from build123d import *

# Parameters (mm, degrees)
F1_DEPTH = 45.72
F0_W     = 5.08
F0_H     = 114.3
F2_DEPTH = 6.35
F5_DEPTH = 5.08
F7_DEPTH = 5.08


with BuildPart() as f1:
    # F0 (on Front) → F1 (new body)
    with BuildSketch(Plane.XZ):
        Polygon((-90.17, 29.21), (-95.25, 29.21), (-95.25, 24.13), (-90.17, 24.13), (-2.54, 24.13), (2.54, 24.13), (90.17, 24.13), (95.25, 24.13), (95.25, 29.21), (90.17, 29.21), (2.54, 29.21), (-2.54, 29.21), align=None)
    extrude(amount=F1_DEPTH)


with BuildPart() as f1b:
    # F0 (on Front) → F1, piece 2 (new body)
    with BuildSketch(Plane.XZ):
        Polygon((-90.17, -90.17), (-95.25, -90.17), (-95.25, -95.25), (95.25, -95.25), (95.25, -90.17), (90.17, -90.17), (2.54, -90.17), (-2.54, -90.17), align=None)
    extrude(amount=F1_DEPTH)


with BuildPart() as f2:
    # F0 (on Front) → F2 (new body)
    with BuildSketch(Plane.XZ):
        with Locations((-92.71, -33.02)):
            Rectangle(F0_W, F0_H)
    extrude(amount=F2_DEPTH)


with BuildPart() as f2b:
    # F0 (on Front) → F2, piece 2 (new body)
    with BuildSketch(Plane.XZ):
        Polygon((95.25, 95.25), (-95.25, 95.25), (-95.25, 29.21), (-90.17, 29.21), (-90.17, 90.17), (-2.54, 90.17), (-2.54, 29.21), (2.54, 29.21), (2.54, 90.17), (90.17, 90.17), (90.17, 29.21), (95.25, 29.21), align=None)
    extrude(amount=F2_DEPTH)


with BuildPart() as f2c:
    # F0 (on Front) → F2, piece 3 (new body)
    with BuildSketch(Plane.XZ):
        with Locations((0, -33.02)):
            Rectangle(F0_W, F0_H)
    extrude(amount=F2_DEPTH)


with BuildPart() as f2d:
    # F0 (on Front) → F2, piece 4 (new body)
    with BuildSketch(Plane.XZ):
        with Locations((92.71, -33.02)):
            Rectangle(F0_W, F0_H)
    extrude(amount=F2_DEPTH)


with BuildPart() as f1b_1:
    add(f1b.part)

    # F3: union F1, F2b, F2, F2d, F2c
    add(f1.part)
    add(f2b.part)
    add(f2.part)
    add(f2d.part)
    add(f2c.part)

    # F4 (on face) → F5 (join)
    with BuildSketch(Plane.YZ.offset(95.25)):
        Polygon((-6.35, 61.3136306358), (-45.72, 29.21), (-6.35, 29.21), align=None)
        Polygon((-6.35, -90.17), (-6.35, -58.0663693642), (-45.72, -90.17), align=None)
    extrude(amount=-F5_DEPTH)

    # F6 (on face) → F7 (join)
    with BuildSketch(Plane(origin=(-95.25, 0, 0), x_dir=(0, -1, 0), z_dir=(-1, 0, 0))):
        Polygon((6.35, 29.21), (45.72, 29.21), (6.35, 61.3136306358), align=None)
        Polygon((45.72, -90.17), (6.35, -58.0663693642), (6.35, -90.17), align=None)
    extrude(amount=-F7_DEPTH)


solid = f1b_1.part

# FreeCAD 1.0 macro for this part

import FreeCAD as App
import Part
import Sketcher

V = App.Vector
Q = App.Units.Quantity


def add_polygon(sketch, points):
    """Adds a closed chain of lines whose ends are joined by coincident constraints."""
    first, n = sketch.GeometryCount, len(points)
    for a, b in zip(points, points[1:] + points[:1]):
        sketch.addGeometry(Part.LineSegment(App.Vector(*a, 0), App.Vector(*b, 0)), False)
    for i in range(n):
        sketch.addConstraint(Sketcher.Constraint("Coincident", first + i, 2, first + (i + 1) % n, 1))

doc = App.newDocument("Part")
body = doc.addObject("PartDesign::Body", "Body")

# Sketch on XZ plane
sketch1 = body.newObject("Sketcher::SketchObject", "Sketch")
sketch1.AttachmentSupport = (doc.getObject("XZ_Plane"), [""])
sketch1.MapMode = "FlatFace"
add_polygon(sketch1, [(-95.25, 29.21), (-95.25, 24.13), (95.25, 24.13), (95.25, 29.21)])  # lines 0-3
sketch1.addConstraint(Sketcher.Constraint("Vertical", 0))
sketch1.addConstraint(Sketcher.Constraint("Horizontal", 1))
sketch1.addConstraint(Sketcher.Constraint("Vertical", 2))
sketch1.addConstraint(Sketcher.Constraint("Horizontal", 3))
sketch1.addConstraint(Sketcher.Constraint("DistanceX", 1, 1, 1, 2, Q("7.5 in")))
sketch1.addConstraint(Sketcher.Constraint("DistanceY", 0, 2, 0, 1, Q("0.2 in")))
sketch1.addConstraint(Sketcher.Constraint("DistanceX", 0, 2, -1, 1, Q("3.75 in")))
sketch1.addConstraint(Sketcher.Constraint("DistanceY", -1, 1, 0, 2, Q("0.95 in")))
pad1 = body.newObject("PartDesign::Pad", "Pad")
pad1.Profile = sketch1
pad1.Length = Q("1.8 in")
body2 = doc.addObject("PartDesign::Body", "Body001")

# Sketch on XZ plane
sketch2 = body2.newObject("Sketcher::SketchObject", "Sketch001")
sketch2.AttachmentSupport = (doc.getObject("XZ_Plane001"), [""])
sketch2.MapMode = "FlatFace"
add_polygon(sketch2, [(-95.25, -90.17), (-95.25, -95.25), (95.25, -95.25), (95.25, -90.17)])  # lines 0-3
sketch2.addConstraint(Sketcher.Constraint("Vertical", 0))
sketch2.addConstraint(Sketcher.Constraint("Horizontal", 1))
sketch2.addConstraint(Sketcher.Constraint("Vertical", 2))
sketch2.addConstraint(Sketcher.Constraint("Horizontal", 3))
sketch2.addConstraint(Sketcher.Constraint("DistanceX", 1, 1, 1, 2, Q("7.5 in")))
sketch2.addConstraint(Sketcher.Constraint("DistanceY", 0, 2, 0, 1, Q("0.2 in")))
sketch2.addConstraint(Sketcher.Constraint("DistanceX", 0, 2, -1, 1, Q("3.75 in")))
sketch2.addConstraint(Sketcher.Constraint("DistanceY", 0, 2, -1, 1, Q("3.75 in")))
pad2 = body2.newObject("PartDesign::Pad", "Pad001")
pad2.Profile = sketch2
pad2.Length = Q("1.8 in")
body3 = doc.addObject("PartDesign::Body", "Body002")

# Sketch on XZ plane
sketch3 = body3.newObject("Sketcher::SketchObject", "Sketch002")
sketch3.AttachmentSupport = (doc.getObject("XZ_Plane002"), [""])
sketch3.MapMode = "FlatFace"
add_polygon(sketch3, [(-95.25, 24.13), (-95.25, -90.17), (-90.17, -90.17), (-90.17, 24.13)])  # lines 0-3
sketch3.addConstraint(Sketcher.Constraint("Vertical", 0))
sketch3.addConstraint(Sketcher.Constraint("Horizontal", 1))
sketch3.addConstraint(Sketcher.Constraint("Vertical", 2))
sketch3.addConstraint(Sketcher.Constraint("Horizontal", 3))
sketch3.addConstraint(Sketcher.Constraint("DistanceX", 1, 1, 1, 2, Q("0.2 in")))
sketch3.addConstraint(Sketcher.Constraint("DistanceY", 0, 2, 0, 1, Q("4.5 in")))
sketch3.addConstraint(Sketcher.Constraint("DistanceX", 0, 2, -1, 1, Q("3.75 in")))
sketch3.addConstraint(Sketcher.Constraint("DistanceY", 0, 2, -1, 1, Q("3.55 in")))
pad3 = body3.newObject("PartDesign::Pad", "Pad002")
pad3.Profile = sketch3
pad3.Length = Q("0.25 in")
body4 = doc.addObject("PartDesign::Body", "Body003")

# Sketch on XZ plane
sketch4 = body4.newObject("Sketcher::SketchObject", "Sketch003")
sketch4.AttachmentSupport = (doc.getObject("XZ_Plane003"), [""])
sketch4.MapMode = "FlatFace"
add_polygon(sketch4, [(95.25, 95.25), (-95.25, 95.25), (-95.25, 29.21), (-90.17, 29.21), (-90.17, 90.17), (-2.54, 90.17), (-2.54, 29.21), (2.54, 29.21), (2.54, 90.17), (90.17, 90.17), (90.17, 29.21), (95.25, 29.21)])  # lines 0-11
sketch4.addConstraint(Sketcher.Constraint("Horizontal", 0))
sketch4.addConstraint(Sketcher.Constraint("Vertical", 1))
sketch4.addConstraint(Sketcher.Constraint("Horizontal", 2))
sketch4.addConstraint(Sketcher.Constraint("Vertical", 3))
sketch4.addConstraint(Sketcher.Constraint("Horizontal", 4))
sketch4.addConstraint(Sketcher.Constraint("Vertical", 5))
sketch4.addConstraint(Sketcher.Constraint("Horizontal", 6))
sketch4.addConstraint(Sketcher.Constraint("Vertical", 7))
sketch4.addConstraint(Sketcher.Constraint("Horizontal", 8))
sketch4.addConstraint(Sketcher.Constraint("Vertical", 9))
sketch4.addConstraint(Sketcher.Constraint("Horizontal", 10))
sketch4.addConstraint(Sketcher.Constraint("Vertical", 11))
sketch4.addConstraint(Sketcher.Constraint("Symmetric", 4, 2, 7, 2, -2))
sketch4.addConstraint(Sketcher.Constraint("Symmetric", 2, 2, 9, 2, -2))
sketch4.addConstraint(Sketcher.Constraint("Horizontal", 2, 2, 5, 2))
sketch4.addConstraint(Sketcher.Constraint("Equal", 2, 6))
sketch4.addConstraint(Sketcher.Constraint("Equal", 6, 10))
sketch4.addConstraint(Sketcher.Constraint("DistanceX", 0, 2, 0, 1, Q("7.5 in")))
sketch4.addConstraint(Sketcher.Constraint("DistanceX", 2, 1, 2, 2, Q("0.2 in")))
sketch4.addConstraint(Sketcher.Constraint("DistanceY", 1, 2, 1, 1, Q("2.6 in")))
sketch4.addConstraint(Sketcher.Constraint("DistanceY", 3, 1, 3, 2, Q("2.4 in")))
sketch4.addConstraint(Sketcher.Constraint("DistanceY", -1, 1, 0, 2, Q("3.75 in")))
pad4 = body4.newObject("PartDesign::Pad", "Pad003")
pad4.Profile = sketch4
pad4.Length = Q("0.25 in")
body5 = doc.addObject("PartDesign::Body", "Body004")

# Sketch on XZ plane
sketch5 = body5.newObject("Sketcher::SketchObject", "Sketch004")
sketch5.AttachmentSupport = (doc.getObject("XZ_Plane004"), [""])
sketch5.MapMode = "FlatFace"
add_polygon(sketch5, [(-2.54, 24.13), (-2.54, -90.17), (2.54, -90.17), (2.54, 24.13)])  # lines 0-3
sketch5.addConstraint(Sketcher.Constraint("Vertical", 0))
sketch5.addConstraint(Sketcher.Constraint("Horizontal", 1))
sketch5.addConstraint(Sketcher.Constraint("Vertical", 2))
sketch5.addConstraint(Sketcher.Constraint("Horizontal", 3))
sketch5.addConstraint(Sketcher.Constraint("DistanceX", 1, 1, 1, 2, Q("0.2 in")))
sketch5.addConstraint(Sketcher.Constraint("DistanceY", 0, 2, 0, 1, Q("4.5 in")))
sketch5.addConstraint(Sketcher.Constraint("DistanceX", 0, 2, -1, 1, Q("0.1 in")))
sketch5.addConstraint(Sketcher.Constraint("DistanceY", 0, 2, -1, 1, Q("3.55 in")))
pad5 = body5.newObject("PartDesign::Pad", "Pad004")
pad5.Profile = sketch5
pad5.Length = Q("0.25 in")
body6 = doc.addObject("PartDesign::Body", "Body005")

# Sketch on XZ plane
sketch6 = body6.newObject("Sketcher::SketchObject", "Sketch005")
sketch6.AttachmentSupport = (doc.getObject("XZ_Plane005"), [""])
sketch6.MapMode = "FlatFace"
add_polygon(sketch6, [(90.17, 24.13), (90.17, -90.17), (95.25, -90.17), (95.25, 24.13)])  # lines 0-3
sketch6.addConstraint(Sketcher.Constraint("Vertical", 0))
sketch6.addConstraint(Sketcher.Constraint("Horizontal", 1))
sketch6.addConstraint(Sketcher.Constraint("Vertical", 2))
sketch6.addConstraint(Sketcher.Constraint("Horizontal", 3))
sketch6.addConstraint(Sketcher.Constraint("DistanceX", 1, 1, 1, 2, Q("0.2 in")))
sketch6.addConstraint(Sketcher.Constraint("DistanceY", 0, 2, 0, 1, Q("4.5 in")))
sketch6.addConstraint(Sketcher.Constraint("DistanceX", -1, 1, 0, 2, Q("3.55 in")))
sketch6.addConstraint(Sketcher.Constraint("DistanceY", 0, 2, -1, 1, Q("3.55 in")))
pad6 = body6.newObject("PartDesign::Pad", "Pad005")
pad6.Profile = sketch6
pad6.Length = Q("0.25 in")
body2.AllowCompound = True
doc.recompute()

boolean = body2.newObject("PartDesign::Boolean", "Boolean")
boolean.Type = "Fuse"
boolean.addObjects([body])
doc.recompute()

boolean2 = body2.newObject("PartDesign::Boolean", "Boolean001")
boolean2.Type = "Fuse"
boolean2.addObjects([body4])
doc.recompute()

boolean3 = body2.newObject("PartDesign::Boolean", "Boolean002")
boolean3.Type = "Fuse"
boolean3.addObjects([body3])
doc.recompute()

boolean4 = body2.newObject("PartDesign::Boolean", "Boolean003")
boolean4.Type = "Fuse"
boolean4.addObjects([body6])
doc.recompute()

boolean5 = body2.newObject("PartDesign::Boolean", "Boolean004")
boolean5.Type = "Fuse"
boolean5.addObjects([body5])

# Sketch on YZ plane
sketch7 = body2.newObject("Sketcher::SketchObject", "Sketch006")
sketch7.AttachmentSupport = (doc.getObject("YZ_Plane001"), [""])
sketch7.MapMode = "FlatFace"
sketch7.AttachmentOffset = App.Placement(V(0, 0, 3.75 * 25.4), App.Rotation())
add_polygon(sketch7, [(-6.35, 61.313631), (-45.72, 29.21), (-6.35, 29.21)])  # lines 0-2
add_polygon(sketch7, [(-6.35, -90.17), (-6.35, -58.066369), (-45.72, -90.17)])  # lines 3-5
sketch7.addConstraint(Sketcher.Constraint("Horizontal", 1))
sketch7.addConstraint(Sketcher.Constraint("Vertical", 2))
sketch7.addConstraint(Sketcher.Constraint("Vertical", 3))
sketch7.addConstraint(Sketcher.Constraint("Horizontal", 5))
sketch7.addConstraint(Sketcher.Constraint("Parallel", 0, 4))
sketch7.addConstraint(Sketcher.Constraint("Vertical", 2, 2, 3, 2))
sketch7.addConstraint(Sketcher.Constraint("Vertical", 0, 2, 4, 2))
sketch7.addConstraint(Sketcher.Constraint("Distance", 0, Q("2 in")))
sketch7.addConstraint(Sketcher.Constraint("DistanceX", 1, 1, 1, 2, Q("1.55 in")))
sketch7.addConstraint(Sketcher.Constraint("DistanceX", 0, 2, -1, 1, Q("1.8 in")))
sketch7.addConstraint(Sketcher.Constraint("DistanceY", 3, 2, 2, 2, Q("4.7 in")))
sketch7.addConstraint(Sketcher.Constraint("DistanceY", -1, 1, 0, 2, Q("1.15 in")))
pad7 = body2.newObject("PartDesign::Pad", "Pad006")
pad7.Profile = sketch7
pad7.Length = Q("0.2 in")
pad7.Reversed = True

# Sketch on YZ plane
sketch8 = body2.newObject("Sketcher::SketchObject", "Sketch007")
sketch8.AttachmentSupport = (doc.getObject("YZ_Plane001"), [""])
sketch8.MapMode = "FlatFace"
sketch8.AttachmentOffset = App.Placement(V(0, 0, -3.75 * 25.4), App.Rotation())
add_polygon(sketch8, [(-6.35, 29.21), (-45.72, 29.21), (-6.35, 61.313631)])  # lines 0-2
add_polygon(sketch8, [(-45.72, -90.17), (-6.35, -58.066369), (-6.35, -90.17)])  # lines 3-5
sketch8.addConstraint(Sketcher.Constraint("Horizontal", 0))
sketch8.addConstraint(Sketcher.Constraint("Vertical", 2))
sketch8.addConstraint(Sketcher.Constraint("Vertical", 4))
sketch8.addConstraint(Sketcher.Constraint("Horizontal", 5))
sketch8.addConstraint(Sketcher.Constraint("Parallel", 1, 3))
sketch8.addConstraint(Sketcher.Constraint("Vertical", 2, 2, 3, 2))
sketch8.addConstraint(Sketcher.Constraint("Vertical", 0, 2, 5, 2))
sketch8.addConstraint(Sketcher.Constraint("Distance", 1, Q("2 in")))
sketch8.addConstraint(Sketcher.Constraint("DistanceX", 0, 2, 0, 1, Q("1.55 in")))
sketch8.addConstraint(Sketcher.Constraint("DistanceX", 0, 2, -1, 1, Q("1.8 in")))
sketch8.addConstraint(Sketcher.Constraint("DistanceY", 3, 2, 1, 2, Q("4.7 in")))
sketch8.addConstraint(Sketcher.Constraint("DistanceY", -1, 1, 0, 2, Q("1.15 in")))
pad8 = body2.newObject("PartDesign::Pad", "Pad007")
pad8.Profile = sketch8
pad8.Length = Q("0.2 in")

doc.recompute()
